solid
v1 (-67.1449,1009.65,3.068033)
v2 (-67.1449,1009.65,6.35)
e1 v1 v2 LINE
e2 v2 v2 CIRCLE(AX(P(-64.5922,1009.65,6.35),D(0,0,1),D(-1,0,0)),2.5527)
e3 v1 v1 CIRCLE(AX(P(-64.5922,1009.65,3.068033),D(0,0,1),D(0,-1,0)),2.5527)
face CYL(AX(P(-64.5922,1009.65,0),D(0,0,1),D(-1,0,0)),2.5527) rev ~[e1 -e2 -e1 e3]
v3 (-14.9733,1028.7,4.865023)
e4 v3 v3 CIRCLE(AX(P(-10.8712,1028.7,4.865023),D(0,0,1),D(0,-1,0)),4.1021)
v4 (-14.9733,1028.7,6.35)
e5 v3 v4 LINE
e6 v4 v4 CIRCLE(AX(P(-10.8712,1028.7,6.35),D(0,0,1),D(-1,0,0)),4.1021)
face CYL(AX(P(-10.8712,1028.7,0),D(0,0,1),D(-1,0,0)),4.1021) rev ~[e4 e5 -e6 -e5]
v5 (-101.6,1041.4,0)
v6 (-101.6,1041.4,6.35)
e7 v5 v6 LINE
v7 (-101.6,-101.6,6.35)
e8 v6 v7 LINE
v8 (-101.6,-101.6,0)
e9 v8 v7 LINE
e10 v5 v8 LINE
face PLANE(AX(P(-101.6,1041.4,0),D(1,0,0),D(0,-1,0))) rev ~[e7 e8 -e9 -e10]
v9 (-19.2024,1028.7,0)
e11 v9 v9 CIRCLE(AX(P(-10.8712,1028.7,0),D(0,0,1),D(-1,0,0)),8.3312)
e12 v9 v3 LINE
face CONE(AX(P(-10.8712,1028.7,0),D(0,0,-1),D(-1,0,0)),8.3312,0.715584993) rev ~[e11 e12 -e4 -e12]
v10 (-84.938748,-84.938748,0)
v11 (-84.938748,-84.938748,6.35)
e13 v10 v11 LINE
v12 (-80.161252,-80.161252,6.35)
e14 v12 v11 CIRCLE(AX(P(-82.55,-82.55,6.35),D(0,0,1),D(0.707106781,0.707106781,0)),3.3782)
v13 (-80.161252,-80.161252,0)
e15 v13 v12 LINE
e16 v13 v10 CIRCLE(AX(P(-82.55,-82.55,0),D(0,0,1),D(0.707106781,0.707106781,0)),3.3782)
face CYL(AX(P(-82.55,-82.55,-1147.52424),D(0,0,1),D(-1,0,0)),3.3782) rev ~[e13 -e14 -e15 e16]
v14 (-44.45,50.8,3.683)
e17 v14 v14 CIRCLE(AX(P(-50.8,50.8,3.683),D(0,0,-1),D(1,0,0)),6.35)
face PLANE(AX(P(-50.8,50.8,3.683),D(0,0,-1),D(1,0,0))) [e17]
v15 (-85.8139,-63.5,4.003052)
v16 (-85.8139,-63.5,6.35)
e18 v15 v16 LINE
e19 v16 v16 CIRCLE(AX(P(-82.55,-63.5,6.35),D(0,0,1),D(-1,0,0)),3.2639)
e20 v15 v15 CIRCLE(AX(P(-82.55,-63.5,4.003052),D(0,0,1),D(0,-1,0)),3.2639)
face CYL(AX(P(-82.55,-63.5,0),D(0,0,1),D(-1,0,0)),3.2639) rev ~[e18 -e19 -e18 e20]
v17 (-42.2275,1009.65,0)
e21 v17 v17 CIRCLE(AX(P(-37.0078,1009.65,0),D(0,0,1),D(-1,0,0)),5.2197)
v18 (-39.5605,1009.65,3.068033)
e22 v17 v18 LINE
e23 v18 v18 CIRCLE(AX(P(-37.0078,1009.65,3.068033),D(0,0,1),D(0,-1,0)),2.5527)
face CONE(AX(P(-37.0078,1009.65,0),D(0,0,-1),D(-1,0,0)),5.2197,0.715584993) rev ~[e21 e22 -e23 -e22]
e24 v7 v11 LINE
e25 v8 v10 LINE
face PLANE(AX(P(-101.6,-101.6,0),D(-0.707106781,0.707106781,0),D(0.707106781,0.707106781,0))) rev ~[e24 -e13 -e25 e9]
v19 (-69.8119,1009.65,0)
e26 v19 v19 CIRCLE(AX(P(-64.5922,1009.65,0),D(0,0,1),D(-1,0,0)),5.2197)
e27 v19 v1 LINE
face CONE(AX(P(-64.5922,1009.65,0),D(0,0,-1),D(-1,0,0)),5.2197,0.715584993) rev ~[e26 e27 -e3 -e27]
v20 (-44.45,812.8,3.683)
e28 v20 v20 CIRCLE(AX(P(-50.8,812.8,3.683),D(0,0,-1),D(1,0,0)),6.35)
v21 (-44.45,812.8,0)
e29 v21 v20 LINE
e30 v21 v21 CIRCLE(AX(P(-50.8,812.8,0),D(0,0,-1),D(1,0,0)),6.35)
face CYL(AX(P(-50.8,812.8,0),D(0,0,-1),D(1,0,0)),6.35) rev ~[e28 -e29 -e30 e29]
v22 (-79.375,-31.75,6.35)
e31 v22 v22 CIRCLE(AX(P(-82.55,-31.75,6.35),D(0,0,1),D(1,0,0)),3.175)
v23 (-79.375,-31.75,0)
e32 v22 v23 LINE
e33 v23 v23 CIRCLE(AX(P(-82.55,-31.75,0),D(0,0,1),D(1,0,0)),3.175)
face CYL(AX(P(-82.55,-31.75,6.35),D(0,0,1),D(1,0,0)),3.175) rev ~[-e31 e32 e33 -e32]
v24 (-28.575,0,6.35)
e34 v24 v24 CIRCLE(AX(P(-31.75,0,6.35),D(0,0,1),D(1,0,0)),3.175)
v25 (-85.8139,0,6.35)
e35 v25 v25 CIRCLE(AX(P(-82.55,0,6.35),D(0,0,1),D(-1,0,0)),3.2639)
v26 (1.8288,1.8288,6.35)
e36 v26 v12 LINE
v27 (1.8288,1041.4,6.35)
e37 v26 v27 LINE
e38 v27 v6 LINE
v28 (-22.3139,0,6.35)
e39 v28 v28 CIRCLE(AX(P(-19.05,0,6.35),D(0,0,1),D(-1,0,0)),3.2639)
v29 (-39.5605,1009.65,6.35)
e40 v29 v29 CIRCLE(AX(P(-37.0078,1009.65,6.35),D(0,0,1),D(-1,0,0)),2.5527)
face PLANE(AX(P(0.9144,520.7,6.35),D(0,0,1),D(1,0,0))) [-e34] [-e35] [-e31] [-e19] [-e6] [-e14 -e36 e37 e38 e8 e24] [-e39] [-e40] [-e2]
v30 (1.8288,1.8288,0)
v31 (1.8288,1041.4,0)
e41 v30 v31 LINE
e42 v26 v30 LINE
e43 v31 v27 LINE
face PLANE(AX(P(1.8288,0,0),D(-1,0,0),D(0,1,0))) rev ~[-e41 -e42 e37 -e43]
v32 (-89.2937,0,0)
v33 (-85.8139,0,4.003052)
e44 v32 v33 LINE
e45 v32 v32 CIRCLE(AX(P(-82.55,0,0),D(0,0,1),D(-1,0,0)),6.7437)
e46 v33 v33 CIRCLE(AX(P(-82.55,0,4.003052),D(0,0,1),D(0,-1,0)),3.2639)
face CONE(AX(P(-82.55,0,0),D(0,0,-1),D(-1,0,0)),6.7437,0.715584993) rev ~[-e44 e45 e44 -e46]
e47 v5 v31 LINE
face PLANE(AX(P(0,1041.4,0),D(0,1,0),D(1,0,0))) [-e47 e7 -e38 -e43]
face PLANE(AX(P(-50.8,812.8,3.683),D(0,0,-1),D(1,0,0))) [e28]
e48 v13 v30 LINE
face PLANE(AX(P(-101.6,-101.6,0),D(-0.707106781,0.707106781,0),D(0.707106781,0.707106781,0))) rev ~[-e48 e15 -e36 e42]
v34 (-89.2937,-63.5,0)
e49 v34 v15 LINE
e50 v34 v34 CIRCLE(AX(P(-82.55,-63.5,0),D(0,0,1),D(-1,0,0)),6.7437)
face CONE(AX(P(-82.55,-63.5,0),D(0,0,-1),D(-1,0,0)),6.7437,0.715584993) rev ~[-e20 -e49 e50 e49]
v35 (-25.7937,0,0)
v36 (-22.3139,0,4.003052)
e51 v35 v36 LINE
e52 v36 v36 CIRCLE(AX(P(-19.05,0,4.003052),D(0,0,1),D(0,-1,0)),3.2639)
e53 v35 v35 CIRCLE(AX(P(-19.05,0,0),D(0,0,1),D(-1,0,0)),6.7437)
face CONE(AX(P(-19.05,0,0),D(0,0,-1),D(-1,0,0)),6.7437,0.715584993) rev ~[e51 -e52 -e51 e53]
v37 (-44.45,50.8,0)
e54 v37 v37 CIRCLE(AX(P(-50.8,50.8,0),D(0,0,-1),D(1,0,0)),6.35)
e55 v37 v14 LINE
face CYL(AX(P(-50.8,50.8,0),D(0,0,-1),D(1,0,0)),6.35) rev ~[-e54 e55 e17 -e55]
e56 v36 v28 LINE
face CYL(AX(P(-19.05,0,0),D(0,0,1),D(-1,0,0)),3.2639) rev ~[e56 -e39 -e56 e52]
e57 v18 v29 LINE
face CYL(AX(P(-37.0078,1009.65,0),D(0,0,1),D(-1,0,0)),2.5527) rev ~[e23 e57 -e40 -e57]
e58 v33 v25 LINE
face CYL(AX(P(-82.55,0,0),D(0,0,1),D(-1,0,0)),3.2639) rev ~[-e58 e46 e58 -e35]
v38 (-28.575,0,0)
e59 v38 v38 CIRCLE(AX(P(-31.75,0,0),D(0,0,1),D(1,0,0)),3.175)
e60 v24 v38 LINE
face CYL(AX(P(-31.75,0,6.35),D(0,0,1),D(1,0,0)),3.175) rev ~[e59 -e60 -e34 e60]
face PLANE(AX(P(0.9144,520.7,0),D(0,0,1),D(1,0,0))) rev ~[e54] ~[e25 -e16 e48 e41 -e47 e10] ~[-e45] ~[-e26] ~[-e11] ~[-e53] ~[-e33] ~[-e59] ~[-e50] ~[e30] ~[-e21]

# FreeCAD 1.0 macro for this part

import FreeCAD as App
import Part
import Sketcher
Q = App.Units.Quantity

doc = App.newDocument("Part")
body = doc.addObject("PartDesign::Body", "Body")

# Sketch on XY plane
sketch1 = body.newObject("Sketcher::SketchObject", "Sketch")
sketch1.AttachmentSupport = (doc.getObject("XY_Plane"), [""])
sketch1.MapMode = "FlatFace"
sketch1.addGeometry(Part.LineSegment(App.Vector(-102, -102, 0), App.Vector(0, 0, 0)), False)
sketch1.addGeometry(Part.LineSegment(App.Vector(0, 0, 0), App.Vector(0, 1041, 0)), False)
sketch1.addGeometry(Part.LineSegment(App.Vector(0, 1041, 0), App.Vector(-102, 1041, 0)), False)
sketch1.addGeometry(Part.LineSegment(App.Vector(-102, 1041, 0), App.Vector(-102, -102, 0)), False)
sketch1.addConstraint(Sketcher.Constraint("Coincident", 0, 2, 1, 1))
sketch1.addConstraint(Sketcher.Constraint("Coincident", 1, 2, 2, 1))
sketch1.addConstraint(Sketcher.Constraint("Coincident", 2, 2, 3, 1))
sketch1.addConstraint(Sketcher.Constraint("Coincident", 3, 2, 0, 1))
sketch1.addConstraint(Sketcher.Constraint("Vertical", 1))
sketch1.addConstraint(Sketcher.Constraint("Horizontal", 2))
sketch1.addConstraint(Sketcher.Constraint("Vertical", 3))
sketch1.addConstraint(Sketcher.Constraint("Coincident", 0, 2, -1, 1))
sketch1.addConstraint(Sketcher.Constraint("DistanceX", 2, 2, 2, 1, Q("4 in")))
sketch1.addConstraint(Sketcher.Constraint("DistanceY", 1, 1, 1, 2, Q("41 in")))
sketch1.addConstraint(Sketcher.Constraint("DistanceY", 3, 2, 3, 1, Q("45 in")))
pad1 = body.newObject("PartDesign::Pad", "Pad")
pad1.Profile = sketch1
pad1.Length = Q("0.25 in")

# Sketch on XY plane
sketch2 = body.newObject("Sketcher::SketchObject", "Sketch001")
sketch2.AttachmentSupport = (doc.getObject("XY_Plane"), [""])
sketch2.MapMode = "FlatFace"
sketch2.addGeometry(Part.Circle(App.Vector(-82.5, -63.5, 0), App.Vector(0, 0, 1), 3.3), False)
sketch2.addGeometry(Part.Circle(App.Vector(-82.5, 0, 0), App.Vector(0, 0, 1), 3.3), False)
sketch2.addGeometry(Part.Circle(App.Vector(-19.1, 0, 0), App.Vector(0, 0, 1), 3.3), False)
sketch2.addConstraint(Sketcher.Constraint("Equal", 0, 1))
sketch2.addConstraint(Sketcher.Constraint("Equal", 1, 2))
sketch2.addConstraint(Sketcher.Constraint("PointOnObject", 1, 3, -1))
sketch2.addConstraint(Sketcher.Constraint("PointOnObject", 2, 3, -1))
sketch2.addConstraint(Sketcher.Constraint("Vertical", 0, 3, 1, 3))
sketch2.addConstraint(Sketcher.Constraint("Diameter", 0, Q("0.257 in")))
sketch2.addConstraint(Sketcher.Constraint("DistanceY", 0, 3, -1, 1, Q("2.5 in")))
sketch2.addConstraint(Sketcher.Constraint("DistanceX", 1, 3, 2, 3, Q("2.5 in")))
sketch2.addConstraint(Sketcher.Constraint("DistanceX", 0, 3, -1, 1, Q("3.25 in")))
doc.recompute()
hole = body.newObject("PartDesign::Hole", "Hole")
hole.Profile = sketch2
hole.ThreadType = "None"
hole.Diameter = Q("0.257 in")
hole.DepthType = "ThroughAll"
hole.HoleCutType = "Countersink"
hole.HoleCutDiameter = Q("0.531 in")
hole.HoleCutCountersinkAngle = 82
hole.Reversed = True

# Sketch on XY plane
sketch3 = body.newObject("Sketcher::SketchObject", "Sketch002")
sketch3.AttachmentSupport = (doc.getObject("XY_Plane"), [""])
sketch3.MapMode = "FlatFace"
sketch3.addGeometry(Part.Circle(App.Vector(-51, 51, 0), App.Vector(0, 0, 1), 6), False)
sketch3.addGeometry(Part.Circle(App.Vector(-51, 813, 0), App.Vector(0, 0, 1), 6), False)
sketch3.addConstraint(Sketcher.Constraint("Equal", 0, 1))
sketch3.addConstraint(Sketcher.Constraint("Vertical", 0, 3, 1, 3))
sketch3.addConstraint(Sketcher.Constraint("Diameter", 0, Q("0.5 in")))
sketch3.addConstraint(Sketcher.Constraint("DistanceX", 0, 3, -1, 1, Q("2 in")))
sketch3.addConstraint(Sketcher.Constraint("DistanceY", -1, 1, 0, 3, Q("2 in")))
sketch3.addConstraint(Sketcher.Constraint("DistanceY", -1, 1, 1, 3, Q("32 in")))
pocket1 = body.newObject("PartDesign::Pocket", "Pocket")
pocket1.Profile = sketch3
pocket1.Length = Q("0.145 in")
pocket1.Reversed = True

# Sketch on XY plane
sketch4 = body.newObject("Sketcher::SketchObject", "Sketch003")
sketch4.AttachmentSupport = (doc.getObject("XY_Plane"), [""])
sketch4.MapMode = "FlatFace"
sketch4.addGeometry(Part.Circle(App.Vector(-37, 1009.6, 0), App.Vector(0, 0, 1), 2.6), False)
sketch4.addGeometry(Part.Circle(App.Vector(-64.6, 1009.6, 0), App.Vector(0, 0, 1), 2.6), False)
sketch4.addConstraint(Sketcher.Constraint("Equal", 0, 1))
sketch4.addConstraint(Sketcher.Constraint("Horizontal", 0, 3, 1, 3))
sketch4.addConstraint(Sketcher.Constraint("Diameter", 0, Q("0.201 in")))
sketch4.addConstraint(Sketcher.Constraint("DistanceY", -1, 1, 0, 3, Q("39.75 in")))
sketch4.addConstraint(Sketcher.Constraint("DistanceX", 0, 3, -1, 1, Q("1.457 in")))
sketch4.addConstraint(Sketcher.Constraint("DistanceX", 1, 3, -1, 1, Q("2.543 in")))
doc.recompute()
hole2 = body.newObject("PartDesign::Hole", "Hole001")
hole2.Profile = sketch4
hole2.ThreadType = "None"
hole2.Diameter = Q("0.201 in")
hole2.DepthType = "ThroughAll"
hole2.HoleCutType = "Countersink"
hole2.HoleCutDiameter = Q("0.411 in")
hole2.HoleCutCountersinkAngle = 82
hole2.Reversed = True

# Sketch on XY plane
sketch5 = body.newObject("Sketcher::SketchObject", "Sketch004")
sketch5.AttachmentSupport = (doc.getObject("XY_Plane"), [""])
sketch5.MapMode = "FlatFace"
sketch5.addGeometry(Part.Circle(App.Vector(-82.5, -82.5, 0), App.Vector(0, 0, 1), 3.4), False)
sketch5.addConstraint(Sketcher.Constraint("Diameter", 0, Q("0.266 in")))
sketch5.addConstraint(Sketcher.Constraint("DistanceX", 0, 3, -1, 1, Q("3.25 in")))
sketch5.addConstraint(Sketcher.Constraint("DistanceY", 0, 3, -1, 1, Q("3.25 in")))
doc.recompute()
hole3 = body.newObject("PartDesign::Hole", "Hole002")
hole3.Profile = sketch5
hole3.ThreadType = "None"
hole3.Diameter = Q("0.266 in")
hole3.DepthType = "ThroughAll"
hole3.Reversed = True

# Sketch on XY plane
sketch6 = body.newObject("Sketcher::SketchObject", "Sketch005")
sketch6.AttachmentSupport = (doc.getObject("XY_Plane"), [""])
sketch6.MapMode = "FlatFace"
sketch6.AttachmentOffset = App.Placement(App.Vector(0, 0, 0.25 * 25.4), App.Rotation())
sketch6.addGeometry(Part.Circle(App.Vector(-82.5, -31.8, 0), App.Vector(0, 0, 1), 3.2), False)
sketch6.addGeometry(Part.Circle(App.Vector(-31.8, 0, 0), App.Vector(0, 0, 1), 3.2), False)
sketch6.addConstraint(Sketcher.Constraint("Equal", 0, 1))
sketch6.addConstraint(Sketcher.Constraint("PointOnObject", 1, 3, -1))
sketch6.addConstraint(Sketcher.Constraint("Diameter", 0, Q("0.25 in")))
sketch6.addConstraint(Sketcher.Constraint("DistanceX", 0, 3, 1, 3, Q("2 in")))
sketch6.addConstraint(Sketcher.Constraint("DistanceX", 0, 3, -1, 1, Q("3.25 in")))
sketch6.addConstraint(Sketcher.Constraint("DistanceY", 0, 3, -1, 1, Q("1.25 in")))
pocket2 = body.newObject("PartDesign::Pocket", "Pocket001")
pocket2.Profile = sketch6
pocket2.Type = "ThroughAll"

# Sketch on XY plane
sketch7 = body.newObject("Sketcher::SketchObject", "Sketch006")
sketch7.AttachmentSupport = (doc.getObject("XY_Plane"), [""])
sketch7.MapMode = "FlatFace"
sketch7.addGeometry(Part.LineSegment(App.Vector(0, 1041.4, 0), App.Vector(0, 0, 0)), False)
sketch7.addGeometry(Part.LineSegment(App.Vector(0, 0, 0), App.Vector(1.8, 0, 0)), False)
sketch7.addGeometry(Part.LineSegment(App.Vector(1.8, 0, 0), App.Vector(1.8, 1041.4, 0)), False)
sketch7.addGeometry(Part.LineSegment(App.Vector(1.8, 1041.4, 0), App.Vector(0, 1041.4, 0)), False)
sketch7.addConstraint(Sketcher.Constraint("Coincident", 0, 2, 1, 1))
sketch7.addConstraint(Sketcher.Constraint("Coincident", 1, 2, 2, 1))
sketch7.addConstraint(Sketcher.Constraint("Coincident", 2, 2, 3, 1))
sketch7.addConstraint(Sketcher.Constraint("Coincident", 3, 2, 0, 1))
sketch7.addConstraint(Sketcher.Constraint("Vertical", 0))
sketch7.addConstraint(Sketcher.Constraint("Horizontal", 1))
sketch7.addConstraint(Sketcher.Constraint("Vertical", 2))
sketch7.addConstraint(Sketcher.Constraint("Horizontal", 3))
sketch7.addConstraint(Sketcher.Constraint("Coincident", 0, 2, -1, 1))
sketch7.addConstraint(Sketcher.Constraint("DistanceY", 0, 2, 0, 1, Q("41 in")))
sketch7.addConstraint(Sketcher.Constraint("DistanceX", 1, 1, 1, 2, Q("0.072 in")))
pad2 = body.newObject("PartDesign::Pad", "Pad001")
pad2.Profile = sketch7
pad2.Length = Q("0.25 in")

# Sketch on XY plane
sketch8 = body.newObject("Sketcher::SketchObject", "Sketch007")
sketch8.AttachmentSupport = (doc.getObject("XY_Plane"), [""])
sketch8.MapMode = "FlatFace"
sketch8.AttachmentOffset = App.Placement(App.Vector(0, 0, 0.25 * 25.4), App.Rotation())
sketch8.addGeometry(Part.LineSegment(App.Vector(1.8, 1.8, 0), App.Vector(0, 0, 0)), False)
sketch8.addGeometry(Part.LineSegment(App.Vector(0, 0, 0), App.Vector(1.8, 0, 0)), False)
sketch8.addGeometry(Part.LineSegment(App.Vector(1.8, 0, 0), App.Vector(1.8, 1.8, 0)), False)
sketch8.addConstraint(Sketcher.Constraint("Coincident", 0, 2, 1, 1))
sketch8.addConstraint(Sketcher.Constraint("Coincident", 1, 2, 2, 1))
sketch8.addConstraint(Sketcher.Constraint("Coincident", 2, 2, 0, 1))
sketch8.addConstraint(Sketcher.Constraint("Horizontal", 1))
sketch8.addConstraint(Sketcher.Constraint("Vertical", 2))
sketch8.addConstraint(Sketcher.Constraint("Coincident", 0, 2, -1, 1))
sketch8.addConstraint(Sketcher.Constraint("Equal", 1, 2))
sketch8.addConstraint(Sketcher.Constraint("DistanceX", 1, 1, 1, 2, Q("0.072 in")))
pocket3 = body.newObject("PartDesign::Pocket", "Pocket002")
pocket3.Profile = sketch8
pocket3.Length = Q("1 in")

# Sketch on XY plane
sketch9 = body.newObject("Sketcher::SketchObject", "Sketch008")
sketch9.AttachmentSupport = (doc.getObject("XY_Plane"), [""])
sketch9.MapMode = "FlatFace"
sketch9.addGeometry(Part.Circle(App.Vector(-10.9, 1028.7, 0), App.Vector(0, 0, 1), 4.1), False)
sketch9.addConstraint(Sketcher.Constraint("Diameter", 0, Q("0.323 in")))
sketch9.addConstraint(Sketcher.Constraint("DistanceY", -1, 1, 0, 3, Q("40.5 in")))
sketch9.addConstraint(Sketcher.Constraint("DistanceX", 0, 3, -1, 1, Q("0.428 in")))
doc.recompute()
hole4 = body.newObject("PartDesign::Hole", "Hole003")
hole4.Profile = sketch9
hole4.ThreadType = "None"
hole4.Diameter = Q("0.323 in")
hole4.DepthType = "ThroughAll"
hole4.HoleCutType = "Countersink"
hole4.HoleCutDiameter = Q("0.656 in")
hole4.HoleCutCountersinkAngle = 82
hole4.Reversed = True

doc.recompute()
